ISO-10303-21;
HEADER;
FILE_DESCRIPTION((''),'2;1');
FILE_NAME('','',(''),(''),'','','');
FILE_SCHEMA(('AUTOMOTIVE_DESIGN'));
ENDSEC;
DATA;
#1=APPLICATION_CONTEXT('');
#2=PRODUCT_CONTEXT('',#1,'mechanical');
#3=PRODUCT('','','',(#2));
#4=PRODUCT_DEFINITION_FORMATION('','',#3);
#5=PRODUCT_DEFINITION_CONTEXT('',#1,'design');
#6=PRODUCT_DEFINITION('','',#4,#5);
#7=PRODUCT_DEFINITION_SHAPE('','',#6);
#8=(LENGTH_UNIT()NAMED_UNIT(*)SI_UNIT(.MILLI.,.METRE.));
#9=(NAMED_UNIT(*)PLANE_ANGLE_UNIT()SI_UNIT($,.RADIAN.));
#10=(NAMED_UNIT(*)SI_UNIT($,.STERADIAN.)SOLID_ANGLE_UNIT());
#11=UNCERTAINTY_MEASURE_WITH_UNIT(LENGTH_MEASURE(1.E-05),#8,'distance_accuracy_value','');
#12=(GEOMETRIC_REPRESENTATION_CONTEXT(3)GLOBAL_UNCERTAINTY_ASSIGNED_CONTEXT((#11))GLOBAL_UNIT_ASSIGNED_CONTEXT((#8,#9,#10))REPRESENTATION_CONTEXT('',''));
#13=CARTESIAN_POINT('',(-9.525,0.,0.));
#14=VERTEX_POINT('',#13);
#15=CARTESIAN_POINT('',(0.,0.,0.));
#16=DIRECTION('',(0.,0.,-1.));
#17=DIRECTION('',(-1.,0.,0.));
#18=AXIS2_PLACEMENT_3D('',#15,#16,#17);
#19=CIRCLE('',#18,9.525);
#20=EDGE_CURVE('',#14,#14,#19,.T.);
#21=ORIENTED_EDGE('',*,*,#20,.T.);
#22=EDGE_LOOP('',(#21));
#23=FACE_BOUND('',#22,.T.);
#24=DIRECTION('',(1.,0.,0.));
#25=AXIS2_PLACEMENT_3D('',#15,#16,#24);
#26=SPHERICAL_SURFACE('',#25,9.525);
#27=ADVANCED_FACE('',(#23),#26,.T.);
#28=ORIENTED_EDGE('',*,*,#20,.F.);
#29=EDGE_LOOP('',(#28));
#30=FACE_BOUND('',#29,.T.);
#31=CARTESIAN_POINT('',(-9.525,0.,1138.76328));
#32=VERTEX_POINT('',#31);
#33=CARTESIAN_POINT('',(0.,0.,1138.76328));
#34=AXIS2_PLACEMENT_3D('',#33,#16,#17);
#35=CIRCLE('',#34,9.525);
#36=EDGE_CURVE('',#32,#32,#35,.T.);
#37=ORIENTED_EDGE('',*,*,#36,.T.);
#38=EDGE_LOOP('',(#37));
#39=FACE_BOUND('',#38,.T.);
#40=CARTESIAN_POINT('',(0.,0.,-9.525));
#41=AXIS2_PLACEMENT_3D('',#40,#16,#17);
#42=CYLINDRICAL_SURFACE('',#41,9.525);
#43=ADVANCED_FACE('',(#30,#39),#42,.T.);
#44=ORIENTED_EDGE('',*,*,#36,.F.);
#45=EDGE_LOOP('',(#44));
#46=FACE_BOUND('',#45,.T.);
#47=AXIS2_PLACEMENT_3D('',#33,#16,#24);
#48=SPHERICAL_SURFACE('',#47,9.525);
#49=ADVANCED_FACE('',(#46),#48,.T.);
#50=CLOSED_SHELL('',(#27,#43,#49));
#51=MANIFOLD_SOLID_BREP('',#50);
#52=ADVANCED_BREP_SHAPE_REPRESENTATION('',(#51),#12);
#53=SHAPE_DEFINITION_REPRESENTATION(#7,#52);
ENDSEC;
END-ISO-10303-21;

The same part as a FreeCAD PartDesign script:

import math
import FreeCAD as App
import Part
import Sketcher
from FreeCAD import Vector
Q = App.Units.Quantity

doc = App.newDocument("Part")
body = doc.addObject("PartDesign::Body", "Body")

# Sketch on XZ plane
sketch1 = body.newObject("Sketcher::SketchObject", "Sketch")
sketch1.AttachmentSupport = (doc.getObject("XZ_Plane"), [""])
sketch1.MapMode = "FlatFace"
sketch1.addGeometry([
    Part.LineSegment(Vector(10, 1139, 0), Vector(10, 0, 0)),
    Part.ArcOfCircle(Part.Circle(Vector(0, 0, 0), Vector(0, 0, 1), 10), math.radians(-90), math.radians(0)),
    Part.LineSegment(Vector(0, -10, 0), Vector(0, 1148, 0)),
    Part.ArcOfCircle(Part.Circle(Vector(0, 1139, 0), Vector(0, 0, 1), 10), math.radians(0), math.radians(90)),
], False)
sketch1.addConstraint([
    Sketcher.Constraint("Tangent", 0, 2, 1, 2),
    Sketcher.Constraint("Coincident", 1, 1, 2, 1),
    Sketcher.Constraint("Coincident", 2, 2, 3, 2),
    Sketcher.Constraint("Tangent", 3, 1, 0, 1),
    Sketcher.Constraint("Vertical", 0),
    Sketcher.Constraint("Vertical", 2),
    Sketcher.Constraint("Coincident", 1, 3, -1, 1),
    Sketcher.Constraint("Equal", 1, 3),
    Sketcher.Constraint("PointOnObject", 1, 1, -2),
    Sketcher.Constraint("Radius", 1, Q("0.375 in")),
    Sketcher.Constraint("DistanceY", 0, 2, 0, 1, Q("44.8332 in")),
])
revolution = body.newObject("PartDesign::Revolution", "Revolution")
revolution.Profile = sketch1
revolution.ReferenceAxis = (sketch1, ["V_Axis"])
revolution.Angle = 360

doc.recompute()
